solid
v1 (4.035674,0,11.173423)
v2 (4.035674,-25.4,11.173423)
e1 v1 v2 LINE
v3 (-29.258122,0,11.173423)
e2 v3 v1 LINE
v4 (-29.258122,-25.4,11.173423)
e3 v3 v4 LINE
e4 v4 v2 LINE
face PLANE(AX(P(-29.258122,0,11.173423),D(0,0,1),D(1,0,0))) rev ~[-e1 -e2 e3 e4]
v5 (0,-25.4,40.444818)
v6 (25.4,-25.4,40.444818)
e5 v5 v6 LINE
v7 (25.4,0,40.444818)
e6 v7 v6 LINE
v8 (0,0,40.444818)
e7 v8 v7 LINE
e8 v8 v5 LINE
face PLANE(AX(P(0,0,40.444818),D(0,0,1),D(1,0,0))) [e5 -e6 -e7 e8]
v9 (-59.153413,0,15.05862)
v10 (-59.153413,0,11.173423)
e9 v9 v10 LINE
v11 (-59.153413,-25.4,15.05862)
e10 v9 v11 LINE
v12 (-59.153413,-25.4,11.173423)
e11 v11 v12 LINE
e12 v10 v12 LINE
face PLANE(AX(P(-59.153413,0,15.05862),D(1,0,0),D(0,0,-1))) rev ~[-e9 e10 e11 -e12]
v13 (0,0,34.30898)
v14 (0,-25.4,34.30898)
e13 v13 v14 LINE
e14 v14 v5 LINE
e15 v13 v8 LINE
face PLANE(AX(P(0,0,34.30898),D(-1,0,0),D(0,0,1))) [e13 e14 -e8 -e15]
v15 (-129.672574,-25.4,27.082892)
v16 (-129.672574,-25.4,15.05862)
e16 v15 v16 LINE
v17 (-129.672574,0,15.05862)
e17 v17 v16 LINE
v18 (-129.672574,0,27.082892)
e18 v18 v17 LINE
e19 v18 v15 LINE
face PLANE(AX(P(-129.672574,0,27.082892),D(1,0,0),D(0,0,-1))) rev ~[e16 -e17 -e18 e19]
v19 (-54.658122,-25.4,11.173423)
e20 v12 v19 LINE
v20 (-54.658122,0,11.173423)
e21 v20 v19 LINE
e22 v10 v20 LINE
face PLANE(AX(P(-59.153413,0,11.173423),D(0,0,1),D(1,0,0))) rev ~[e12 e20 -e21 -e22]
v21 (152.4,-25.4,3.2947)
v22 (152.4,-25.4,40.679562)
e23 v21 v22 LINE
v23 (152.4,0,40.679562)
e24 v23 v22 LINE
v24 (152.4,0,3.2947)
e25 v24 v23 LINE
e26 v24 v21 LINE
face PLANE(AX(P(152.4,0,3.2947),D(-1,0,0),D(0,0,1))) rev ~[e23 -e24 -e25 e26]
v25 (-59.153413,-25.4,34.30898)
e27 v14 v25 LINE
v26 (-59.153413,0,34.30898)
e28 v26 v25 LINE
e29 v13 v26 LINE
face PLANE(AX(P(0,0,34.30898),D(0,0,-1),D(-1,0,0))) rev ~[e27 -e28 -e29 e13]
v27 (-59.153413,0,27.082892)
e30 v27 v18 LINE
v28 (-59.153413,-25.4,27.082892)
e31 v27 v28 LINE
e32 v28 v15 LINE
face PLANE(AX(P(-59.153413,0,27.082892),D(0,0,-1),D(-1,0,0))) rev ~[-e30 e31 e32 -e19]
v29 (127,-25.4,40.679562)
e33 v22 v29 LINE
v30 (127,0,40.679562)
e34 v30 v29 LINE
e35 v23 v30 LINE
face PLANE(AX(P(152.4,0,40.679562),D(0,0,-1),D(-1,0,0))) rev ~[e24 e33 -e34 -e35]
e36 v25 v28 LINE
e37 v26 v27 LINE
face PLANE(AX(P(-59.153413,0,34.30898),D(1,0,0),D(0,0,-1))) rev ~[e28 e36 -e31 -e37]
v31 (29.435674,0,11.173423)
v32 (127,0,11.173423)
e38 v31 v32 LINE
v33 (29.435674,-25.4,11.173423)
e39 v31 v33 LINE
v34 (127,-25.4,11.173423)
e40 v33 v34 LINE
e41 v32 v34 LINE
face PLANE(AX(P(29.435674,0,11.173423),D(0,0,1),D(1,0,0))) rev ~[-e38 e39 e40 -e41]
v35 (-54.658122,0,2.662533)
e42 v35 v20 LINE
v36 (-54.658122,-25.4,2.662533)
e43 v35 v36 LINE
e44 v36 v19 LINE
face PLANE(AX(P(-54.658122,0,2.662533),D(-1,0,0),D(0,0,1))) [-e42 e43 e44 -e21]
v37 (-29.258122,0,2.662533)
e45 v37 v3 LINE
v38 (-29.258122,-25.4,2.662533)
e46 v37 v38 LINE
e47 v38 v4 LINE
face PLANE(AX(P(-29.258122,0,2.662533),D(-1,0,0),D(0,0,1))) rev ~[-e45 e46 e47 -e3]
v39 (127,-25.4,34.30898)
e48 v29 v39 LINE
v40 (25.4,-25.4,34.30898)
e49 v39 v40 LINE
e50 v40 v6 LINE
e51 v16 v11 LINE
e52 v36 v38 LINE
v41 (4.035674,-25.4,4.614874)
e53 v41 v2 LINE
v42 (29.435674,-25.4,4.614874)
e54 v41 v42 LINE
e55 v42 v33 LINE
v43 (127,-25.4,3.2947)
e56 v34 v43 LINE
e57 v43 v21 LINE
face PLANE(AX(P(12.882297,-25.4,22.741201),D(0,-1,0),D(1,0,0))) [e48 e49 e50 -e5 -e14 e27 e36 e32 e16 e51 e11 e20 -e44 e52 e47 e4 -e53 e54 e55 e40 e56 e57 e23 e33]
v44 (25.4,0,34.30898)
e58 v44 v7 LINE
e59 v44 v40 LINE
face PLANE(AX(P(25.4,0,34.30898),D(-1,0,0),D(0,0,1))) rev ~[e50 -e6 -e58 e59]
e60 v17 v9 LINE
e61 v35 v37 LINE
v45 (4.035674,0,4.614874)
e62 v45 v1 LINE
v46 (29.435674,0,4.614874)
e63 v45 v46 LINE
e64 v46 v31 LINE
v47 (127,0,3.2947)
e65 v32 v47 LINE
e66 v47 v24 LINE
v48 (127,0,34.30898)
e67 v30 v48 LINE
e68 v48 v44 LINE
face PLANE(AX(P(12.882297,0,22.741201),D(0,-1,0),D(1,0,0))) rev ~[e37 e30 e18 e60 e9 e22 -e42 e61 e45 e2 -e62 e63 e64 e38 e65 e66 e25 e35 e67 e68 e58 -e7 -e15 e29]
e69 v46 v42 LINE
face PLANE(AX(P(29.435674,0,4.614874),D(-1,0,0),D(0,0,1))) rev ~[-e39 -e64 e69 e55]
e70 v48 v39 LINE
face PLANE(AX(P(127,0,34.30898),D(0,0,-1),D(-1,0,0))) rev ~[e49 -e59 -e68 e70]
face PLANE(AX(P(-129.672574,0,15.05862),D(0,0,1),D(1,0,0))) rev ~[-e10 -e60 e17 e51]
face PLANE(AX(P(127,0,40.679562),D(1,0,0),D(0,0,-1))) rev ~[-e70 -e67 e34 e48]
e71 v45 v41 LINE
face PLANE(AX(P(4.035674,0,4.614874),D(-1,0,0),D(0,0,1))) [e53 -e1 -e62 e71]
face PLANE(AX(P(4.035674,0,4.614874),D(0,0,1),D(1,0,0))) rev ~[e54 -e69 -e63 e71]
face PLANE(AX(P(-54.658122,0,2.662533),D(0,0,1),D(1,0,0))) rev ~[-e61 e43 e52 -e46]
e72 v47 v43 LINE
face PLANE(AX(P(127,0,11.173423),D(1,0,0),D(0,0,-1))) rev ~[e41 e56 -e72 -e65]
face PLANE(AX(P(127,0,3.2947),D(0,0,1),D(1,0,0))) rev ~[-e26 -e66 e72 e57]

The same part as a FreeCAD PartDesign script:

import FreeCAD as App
import Part
import Sketcher
Q = App.Units.Quantity

doc = App.newDocument("Part")
params = doc.addObject("Spreadsheet::Sheet", "Params")
for row, (alias, value) in enumerate([
    ("sketch1_width", "1 in"),
    ("sketch1_width2", "4 in"),
    ("pad1_length", "1 in"),
], start=1):
    params.set(f"A{row}", alias)
    params.set(f"B{row}", "=" + value)
    params.setAlias(f"B{row}", alias)

body = doc.addObject("PartDesign::Body", "Body")

# Sketch on XZ plane
sketch1 = doc.addObject("Sketcher::SketchObject", "Sketch")
body.addObject(sketch1)
sketch1.AttachmentSupport = (doc.XZ_Plane, [""])
sketch1.MapMode = "FlatFace"
sketch1.addGeometry([
    Part.LineSegment(App.Vector(0, 34.3, 0), App.Vector(-59.2, 34.3, 0)),  # 0
    Part.LineSegment(App.Vector(-59.2, 34.3, 0), App.Vector(-59.2, 27.1, 0)),  # 1
    Part.LineSegment(App.Vector(-59.2, 27.1, 0), App.Vector(-129.7, 27.1, 0)),  # 2
    Part.LineSegment(App.Vector(-129.7, 27.1, 0), App.Vector(-129.7, 15.1, 0)),  # 3
    Part.LineSegment(App.Vector(-129.7, 15.1, 0), App.Vector(-59.2, 15.1, 0)),  # 4
    Part.LineSegment(App.Vector(-59.2, 15.1, 0), App.Vector(-59.2, 11.2, 0)),  # 5
    Part.LineSegment(App.Vector(-59.2, 11.2, 0), App.Vector(-54.7, 11.2, 0)),  # 6
    Part.LineSegment(App.Vector(-54.7, 11.2, 0), App.Vector(-54.7, 2.7, 0)),  # 7
    Part.LineSegment(App.Vector(-54.7, 2.7, 0), App.Vector(-29.3, 2.7, 0)),  # 8
    Part.LineSegment(App.Vector(-29.3, 2.7, 0), App.Vector(-29.3, 11.2, 0)),  # 9
    Part.LineSegment(App.Vector(-29.3, 11.2, 0), App.Vector(4, 11.2, 0)),  # 10
    Part.LineSegment(App.Vector(4, 11.2, 0), App.Vector(4, 4.6, 0)),  # 11
    Part.LineSegment(App.Vector(4, 4.6, 0), App.Vector(29.4, 4.6, 0)),  # 12
    Part.LineSegment(App.Vector(29.4, 4.6, 0), App.Vector(29.4, 11.2, 0)),  # 13
    Part.LineSegment(App.Vector(29.4, 11.2, 0), App.Vector(127, 11.2, 0)),  # 14
    Part.LineSegment(App.Vector(127, 11.2, 0), App.Vector(127, 3.3, 0)),  # 15
    Part.LineSegment(App.Vector(127, 3.3, 0), App.Vector(152.4, 3.3, 0)),  # 16
    Part.LineSegment(App.Vector(152.4, 3.3, 0), App.Vector(152.4, 40.7, 0)),  # 17
    Part.LineSegment(App.Vector(152.4, 40.7, 0), App.Vector(127, 40.7, 0)),  # 18
    Part.LineSegment(App.Vector(127, 40.7, 0), App.Vector(127, 34.3, 0)),  # 19
    Part.LineSegment(App.Vector(127, 34.3, 0), App.Vector(25.4, 34.3, 0)),  # 20
    Part.LineSegment(App.Vector(25.4, 34.3, 0), App.Vector(25.4, 40.4, 0)),  # 21
    Part.LineSegment(App.Vector(25.4, 40.4, 0), App.Vector(0, 40.4, 0)),  # 22
    Part.LineSegment(App.Vector(0, 40.4, 0), App.Vector(0, 34.3, 0)),  # 23
], False)
sketch1.addConstraint([
    Sketcher.Constraint("Coincident", 0, 2, 1, 1),
    Sketcher.Constraint("Coincident", 1, 2, 2, 1),
    Sketcher.Constraint("Coincident", 2, 2, 3, 1),
    Sketcher.Constraint("Coincident", 3, 2, 4, 1),
    Sketcher.Constraint("Coincident", 4, 2, 5, 1),
    Sketcher.Constraint("Coincident", 5, 2, 6, 1),
    Sketcher.Constraint("Coincident", 6, 2, 7, 1),
    Sketcher.Constraint("Coincident", 7, 2, 8, 1),
    Sketcher.Constraint("Coincident", 8, 2, 9, 1),
    Sketcher.Constraint("Coincident", 9, 2, 10, 1),
    Sketcher.Constraint("Coincident", 10, 2, 11, 1),
    Sketcher.Constraint("Coincident", 11, 2, 12, 1),
    Sketcher.Constraint("Coincident", 12, 2, 13, 1),
    Sketcher.Constraint("Coincident", 13, 2, 14, 1),
    Sketcher.Constraint("Coincident", 14, 2, 15, 1),
    Sketcher.Constraint("Coincident", 15, 2, 16, 1),
    Sketcher.Constraint("Coincident", 16, 2, 17, 1),
    Sketcher.Constraint("Coincident", 17, 2, 18, 1),
    Sketcher.Constraint("Coincident", 18, 2, 19, 1),
    Sketcher.Constraint("Coincident", 19, 2, 20, 1),
    Sketcher.Constraint("Coincident", 20, 2, 21, 1),
    Sketcher.Constraint("Coincident", 21, 2, 22, 1),
    Sketcher.Constraint("Coincident", 22, 2, 23, 1),
    Sketcher.Constraint("Coincident", 23, 2, 0, 1),
    Sketcher.Constraint("Horizontal", 0),
    Sketcher.Constraint("Vertical", 1),
    Sketcher.Constraint("Horizontal", 2),
    Sketcher.Constraint("Vertical", 3),
    Sketcher.Constraint("Horizontal", 4),
    Sketcher.Constraint("Vertical", 5),
    Sketcher.Constraint("Horizontal", 6),
    Sketcher.Constraint("Vertical", 7),
    Sketcher.Constraint("Horizontal", 8),
    Sketcher.Constraint("Vertical", 9),
    Sketcher.Constraint("Horizontal", 10),
    Sketcher.Constraint("Vertical", 11),
    Sketcher.Constraint("Horizontal", 12),
    Sketcher.Constraint("Vertical", 13),
    Sketcher.Constraint("Horizontal", 14),
    Sketcher.Constraint("Vertical", 15),
    Sketcher.Constraint("Horizontal", 16),
    Sketcher.Constraint("Vertical", 17),
    Sketcher.Constraint("Horizontal", 18),
    Sketcher.Constraint("Vertical", 19),
    Sketcher.Constraint("Horizontal", 20),
    Sketcher.Constraint("Vertical", 21),
    Sketcher.Constraint("Horizontal", 22),
    Sketcher.Constraint("Vertical", 23),
    Sketcher.Constraint("PointOnObject", 22, 2, -2),
    Sketcher.Constraint("Horizontal", 6, 2, 9, 2),
    Sketcher.Constraint("Horizontal", 10, 2, 13, 2),
    Sketcher.Constraint("Horizontal", 0, 2, 19, 2),
    Sketcher.Constraint("Vertical", 1, 2, 4, 2),
    Sketcher.Constraint("Vertical", 15, 2, 18, 2),
    Sketcher.Constraint("Equal", 8, 12),
    Sketcher.Constraint("Equal", 12, 16),
    Sketcher.Constraint("Equal", 18, 22),
    Sketcher.Constraint("DistanceX", 8, 1, 8, 2, Q("1 in")),
    Sketcher.Constraint("DistanceX", 20, 2, 20, 1, Q("4 in")),
    Sketcher.Constraint("DistanceX", 2, 2, 2, 1, 70.519161),
    Sketcher.Constraint("DistanceX", 6, 1, 6, 2, 4.495291),
    Sketcher.Constraint("DistanceY", 7, 2, 7, 1, 8.51089),
    Sketcher.Constraint("DistanceY", 11, 2, 11, 1, 6.558548),
    Sketcher.Constraint("DistanceY", 17, 1, 17, 2, 37.384862),
    Sketcher.Constraint("DistanceY", 19, 2, 19, 1, 6.370582),
    Sketcher.Constraint("DistanceY", -1, 1, 15, 2, 3.2947),
    Sketcher.Constraint("DistanceX", 0, 2, 0, 1, 59.153413),
    Sketcher.Constraint("DistanceX", 10, 1, 10, 2, 33.293796),
    Sketcher.Constraint("DistanceY", 1, 2, 1, 1, 7.226088),
    Sketcher.Constraint("DistanceY", 3, 2, 3, 1, 12.024272),
    Sketcher.Constraint("DistanceY", 5, 2, 5, 1, 3.885197),
    Sketcher.Constraint("DistanceY", 21, 1, 21, 2, 6.135838),
])
sketch1.setExpression("Constraints[57]", "Params.sketch1_width")
sketch1.setExpression("Constraints[58]", "Params.sketch1_width2")
pad1 = doc.addObject("PartDesign::Pad", "Pad")
body.addObject(pad1)
pad1.Profile = sketch1
pad1.setExpression("Length", "Params.pad1_length")

doc.recompute()
